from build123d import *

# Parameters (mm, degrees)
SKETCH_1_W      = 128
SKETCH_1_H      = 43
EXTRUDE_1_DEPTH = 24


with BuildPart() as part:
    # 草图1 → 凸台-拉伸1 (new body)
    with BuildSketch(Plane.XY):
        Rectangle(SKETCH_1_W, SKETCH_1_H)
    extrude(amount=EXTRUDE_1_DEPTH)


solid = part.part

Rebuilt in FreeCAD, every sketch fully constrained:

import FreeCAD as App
import Part
import Sketcher

V = App.Vector

doc = App.newDocument("Part")
body = doc.addObject("PartDesign::Body", "Body")

# Sketch on XY plane
sketch1 = doc.addObject("Sketcher::SketchObject", "Sketch")
body.addObject(sketch1)
sketch1.AttachmentSupport = (doc.XY_Plane, [""])
sketch1.MapMode = "FlatFace"
sketch1.addGeometry([
    Part.LineSegment(V(-64, 22, 0), V(-64, -22, 0)),
    Part.LineSegment(V(-64, -22, 0), V(64, -22, 0)),
    Part.LineSegment(V(64, -22, 0), V(64, 22, 0)),
    Part.LineSegment(V(64, 22, 0), V(-64, 22, 0)),
], False)
sketch1.addConstraint([
    Sketcher.Constraint("Coincident", 0, 2, 1, 1),
    Sketcher.Constraint("Coincident", 1, 2, 2, 1),
    Sketcher.Constraint("Coincident", 2, 2, 3, 1),
    Sketcher.Constraint("Coincident", 3, 2, 0, 1),
    Sketcher.Constraint("Vertical", 0),
    Sketcher.Constraint("Horizontal", 1),
    Sketcher.Constraint("Vertical", 2),
    Sketcher.Constraint("Horizontal", 3),
    Sketcher.Constraint("Symmetric", 0, 2, 2, 2, -1, 1),
    Sketcher.Constraint("DistanceX", 1, 1, 1, 2, 128.0),
    Sketcher.Constraint("DistanceY", 0, 2, 0, 1, 43.0),
])
pad1 = doc.addObject("PartDesign::Pad", "Pad")
body.addObject(pad1)
pad1.Profile = sketch1
pad1.Length = 24

doc.recompute()
